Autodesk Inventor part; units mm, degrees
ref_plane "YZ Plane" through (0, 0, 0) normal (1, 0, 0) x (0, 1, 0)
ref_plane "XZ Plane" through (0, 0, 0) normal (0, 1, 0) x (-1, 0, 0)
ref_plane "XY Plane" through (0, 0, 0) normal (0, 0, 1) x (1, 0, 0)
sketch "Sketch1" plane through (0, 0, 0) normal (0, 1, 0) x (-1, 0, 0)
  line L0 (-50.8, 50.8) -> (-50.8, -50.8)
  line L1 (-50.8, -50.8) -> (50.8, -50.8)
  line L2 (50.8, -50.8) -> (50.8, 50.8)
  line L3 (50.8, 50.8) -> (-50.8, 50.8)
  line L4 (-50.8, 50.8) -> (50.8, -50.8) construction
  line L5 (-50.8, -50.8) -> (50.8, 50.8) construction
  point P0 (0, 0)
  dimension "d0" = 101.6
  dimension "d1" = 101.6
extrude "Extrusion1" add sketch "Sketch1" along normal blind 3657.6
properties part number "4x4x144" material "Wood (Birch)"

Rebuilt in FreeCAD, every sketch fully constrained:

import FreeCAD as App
import Part
import Sketcher

V = App.Vector
Q = App.Units.Quantity


def add_polygon(sketch, points):
    """Adds a closed chain of lines whose ends are joined by coincident constraints."""
    first, n = sketch.GeometryCount, len(points)
    for a, b in zip(points, points[1:] + points[:1]):
        sketch.addGeometry(Part.LineSegment(App.Vector(*a, 0), App.Vector(*b, 0)), False)
    for i in range(n):
        sketch.addConstraint(Sketcher.Constraint("Coincident", first + i, 2, first + (i + 1) % n, 1))

doc = App.newDocument("Part")
body = doc.addObject("PartDesign::Body", "Body")

# Sketch on XZ plane
sketch1 = body.newObject("Sketcher::SketchObject", "Sketch")
sketch1.AttachmentSupport = (doc.getObject("XZ_Plane"), [""])
sketch1.MapMode = "FlatFace"
add_polygon(sketch1, [(-50.8, 50.8), (50.8, 50.8), (50.8, -50.8), (-50.8, -50.8)])  # lines 0-3
sketch1.addConstraint([
    Sketcher.Constraint("Horizontal", 0),
    Sketcher.Constraint("Vertical", 1),
    Sketcher.Constraint("Horizontal", 2),
    Sketcher.Constraint("Vertical", 3),
    Sketcher.Constraint("Symmetric", 0, 2, 2, 2, -1, 1),
    Sketcher.Constraint("Equal", 2, 1),
    Sketcher.Constraint("DistanceX", 0, 1, 0, 2, Q("4 in")),
])
pad1 = body.newObject("PartDesign::Pad", "Pad")
pad1.Profile = sketch1
pad1.Length = Q("144 in")
pad1.Reversed = True

doc.recompute()
